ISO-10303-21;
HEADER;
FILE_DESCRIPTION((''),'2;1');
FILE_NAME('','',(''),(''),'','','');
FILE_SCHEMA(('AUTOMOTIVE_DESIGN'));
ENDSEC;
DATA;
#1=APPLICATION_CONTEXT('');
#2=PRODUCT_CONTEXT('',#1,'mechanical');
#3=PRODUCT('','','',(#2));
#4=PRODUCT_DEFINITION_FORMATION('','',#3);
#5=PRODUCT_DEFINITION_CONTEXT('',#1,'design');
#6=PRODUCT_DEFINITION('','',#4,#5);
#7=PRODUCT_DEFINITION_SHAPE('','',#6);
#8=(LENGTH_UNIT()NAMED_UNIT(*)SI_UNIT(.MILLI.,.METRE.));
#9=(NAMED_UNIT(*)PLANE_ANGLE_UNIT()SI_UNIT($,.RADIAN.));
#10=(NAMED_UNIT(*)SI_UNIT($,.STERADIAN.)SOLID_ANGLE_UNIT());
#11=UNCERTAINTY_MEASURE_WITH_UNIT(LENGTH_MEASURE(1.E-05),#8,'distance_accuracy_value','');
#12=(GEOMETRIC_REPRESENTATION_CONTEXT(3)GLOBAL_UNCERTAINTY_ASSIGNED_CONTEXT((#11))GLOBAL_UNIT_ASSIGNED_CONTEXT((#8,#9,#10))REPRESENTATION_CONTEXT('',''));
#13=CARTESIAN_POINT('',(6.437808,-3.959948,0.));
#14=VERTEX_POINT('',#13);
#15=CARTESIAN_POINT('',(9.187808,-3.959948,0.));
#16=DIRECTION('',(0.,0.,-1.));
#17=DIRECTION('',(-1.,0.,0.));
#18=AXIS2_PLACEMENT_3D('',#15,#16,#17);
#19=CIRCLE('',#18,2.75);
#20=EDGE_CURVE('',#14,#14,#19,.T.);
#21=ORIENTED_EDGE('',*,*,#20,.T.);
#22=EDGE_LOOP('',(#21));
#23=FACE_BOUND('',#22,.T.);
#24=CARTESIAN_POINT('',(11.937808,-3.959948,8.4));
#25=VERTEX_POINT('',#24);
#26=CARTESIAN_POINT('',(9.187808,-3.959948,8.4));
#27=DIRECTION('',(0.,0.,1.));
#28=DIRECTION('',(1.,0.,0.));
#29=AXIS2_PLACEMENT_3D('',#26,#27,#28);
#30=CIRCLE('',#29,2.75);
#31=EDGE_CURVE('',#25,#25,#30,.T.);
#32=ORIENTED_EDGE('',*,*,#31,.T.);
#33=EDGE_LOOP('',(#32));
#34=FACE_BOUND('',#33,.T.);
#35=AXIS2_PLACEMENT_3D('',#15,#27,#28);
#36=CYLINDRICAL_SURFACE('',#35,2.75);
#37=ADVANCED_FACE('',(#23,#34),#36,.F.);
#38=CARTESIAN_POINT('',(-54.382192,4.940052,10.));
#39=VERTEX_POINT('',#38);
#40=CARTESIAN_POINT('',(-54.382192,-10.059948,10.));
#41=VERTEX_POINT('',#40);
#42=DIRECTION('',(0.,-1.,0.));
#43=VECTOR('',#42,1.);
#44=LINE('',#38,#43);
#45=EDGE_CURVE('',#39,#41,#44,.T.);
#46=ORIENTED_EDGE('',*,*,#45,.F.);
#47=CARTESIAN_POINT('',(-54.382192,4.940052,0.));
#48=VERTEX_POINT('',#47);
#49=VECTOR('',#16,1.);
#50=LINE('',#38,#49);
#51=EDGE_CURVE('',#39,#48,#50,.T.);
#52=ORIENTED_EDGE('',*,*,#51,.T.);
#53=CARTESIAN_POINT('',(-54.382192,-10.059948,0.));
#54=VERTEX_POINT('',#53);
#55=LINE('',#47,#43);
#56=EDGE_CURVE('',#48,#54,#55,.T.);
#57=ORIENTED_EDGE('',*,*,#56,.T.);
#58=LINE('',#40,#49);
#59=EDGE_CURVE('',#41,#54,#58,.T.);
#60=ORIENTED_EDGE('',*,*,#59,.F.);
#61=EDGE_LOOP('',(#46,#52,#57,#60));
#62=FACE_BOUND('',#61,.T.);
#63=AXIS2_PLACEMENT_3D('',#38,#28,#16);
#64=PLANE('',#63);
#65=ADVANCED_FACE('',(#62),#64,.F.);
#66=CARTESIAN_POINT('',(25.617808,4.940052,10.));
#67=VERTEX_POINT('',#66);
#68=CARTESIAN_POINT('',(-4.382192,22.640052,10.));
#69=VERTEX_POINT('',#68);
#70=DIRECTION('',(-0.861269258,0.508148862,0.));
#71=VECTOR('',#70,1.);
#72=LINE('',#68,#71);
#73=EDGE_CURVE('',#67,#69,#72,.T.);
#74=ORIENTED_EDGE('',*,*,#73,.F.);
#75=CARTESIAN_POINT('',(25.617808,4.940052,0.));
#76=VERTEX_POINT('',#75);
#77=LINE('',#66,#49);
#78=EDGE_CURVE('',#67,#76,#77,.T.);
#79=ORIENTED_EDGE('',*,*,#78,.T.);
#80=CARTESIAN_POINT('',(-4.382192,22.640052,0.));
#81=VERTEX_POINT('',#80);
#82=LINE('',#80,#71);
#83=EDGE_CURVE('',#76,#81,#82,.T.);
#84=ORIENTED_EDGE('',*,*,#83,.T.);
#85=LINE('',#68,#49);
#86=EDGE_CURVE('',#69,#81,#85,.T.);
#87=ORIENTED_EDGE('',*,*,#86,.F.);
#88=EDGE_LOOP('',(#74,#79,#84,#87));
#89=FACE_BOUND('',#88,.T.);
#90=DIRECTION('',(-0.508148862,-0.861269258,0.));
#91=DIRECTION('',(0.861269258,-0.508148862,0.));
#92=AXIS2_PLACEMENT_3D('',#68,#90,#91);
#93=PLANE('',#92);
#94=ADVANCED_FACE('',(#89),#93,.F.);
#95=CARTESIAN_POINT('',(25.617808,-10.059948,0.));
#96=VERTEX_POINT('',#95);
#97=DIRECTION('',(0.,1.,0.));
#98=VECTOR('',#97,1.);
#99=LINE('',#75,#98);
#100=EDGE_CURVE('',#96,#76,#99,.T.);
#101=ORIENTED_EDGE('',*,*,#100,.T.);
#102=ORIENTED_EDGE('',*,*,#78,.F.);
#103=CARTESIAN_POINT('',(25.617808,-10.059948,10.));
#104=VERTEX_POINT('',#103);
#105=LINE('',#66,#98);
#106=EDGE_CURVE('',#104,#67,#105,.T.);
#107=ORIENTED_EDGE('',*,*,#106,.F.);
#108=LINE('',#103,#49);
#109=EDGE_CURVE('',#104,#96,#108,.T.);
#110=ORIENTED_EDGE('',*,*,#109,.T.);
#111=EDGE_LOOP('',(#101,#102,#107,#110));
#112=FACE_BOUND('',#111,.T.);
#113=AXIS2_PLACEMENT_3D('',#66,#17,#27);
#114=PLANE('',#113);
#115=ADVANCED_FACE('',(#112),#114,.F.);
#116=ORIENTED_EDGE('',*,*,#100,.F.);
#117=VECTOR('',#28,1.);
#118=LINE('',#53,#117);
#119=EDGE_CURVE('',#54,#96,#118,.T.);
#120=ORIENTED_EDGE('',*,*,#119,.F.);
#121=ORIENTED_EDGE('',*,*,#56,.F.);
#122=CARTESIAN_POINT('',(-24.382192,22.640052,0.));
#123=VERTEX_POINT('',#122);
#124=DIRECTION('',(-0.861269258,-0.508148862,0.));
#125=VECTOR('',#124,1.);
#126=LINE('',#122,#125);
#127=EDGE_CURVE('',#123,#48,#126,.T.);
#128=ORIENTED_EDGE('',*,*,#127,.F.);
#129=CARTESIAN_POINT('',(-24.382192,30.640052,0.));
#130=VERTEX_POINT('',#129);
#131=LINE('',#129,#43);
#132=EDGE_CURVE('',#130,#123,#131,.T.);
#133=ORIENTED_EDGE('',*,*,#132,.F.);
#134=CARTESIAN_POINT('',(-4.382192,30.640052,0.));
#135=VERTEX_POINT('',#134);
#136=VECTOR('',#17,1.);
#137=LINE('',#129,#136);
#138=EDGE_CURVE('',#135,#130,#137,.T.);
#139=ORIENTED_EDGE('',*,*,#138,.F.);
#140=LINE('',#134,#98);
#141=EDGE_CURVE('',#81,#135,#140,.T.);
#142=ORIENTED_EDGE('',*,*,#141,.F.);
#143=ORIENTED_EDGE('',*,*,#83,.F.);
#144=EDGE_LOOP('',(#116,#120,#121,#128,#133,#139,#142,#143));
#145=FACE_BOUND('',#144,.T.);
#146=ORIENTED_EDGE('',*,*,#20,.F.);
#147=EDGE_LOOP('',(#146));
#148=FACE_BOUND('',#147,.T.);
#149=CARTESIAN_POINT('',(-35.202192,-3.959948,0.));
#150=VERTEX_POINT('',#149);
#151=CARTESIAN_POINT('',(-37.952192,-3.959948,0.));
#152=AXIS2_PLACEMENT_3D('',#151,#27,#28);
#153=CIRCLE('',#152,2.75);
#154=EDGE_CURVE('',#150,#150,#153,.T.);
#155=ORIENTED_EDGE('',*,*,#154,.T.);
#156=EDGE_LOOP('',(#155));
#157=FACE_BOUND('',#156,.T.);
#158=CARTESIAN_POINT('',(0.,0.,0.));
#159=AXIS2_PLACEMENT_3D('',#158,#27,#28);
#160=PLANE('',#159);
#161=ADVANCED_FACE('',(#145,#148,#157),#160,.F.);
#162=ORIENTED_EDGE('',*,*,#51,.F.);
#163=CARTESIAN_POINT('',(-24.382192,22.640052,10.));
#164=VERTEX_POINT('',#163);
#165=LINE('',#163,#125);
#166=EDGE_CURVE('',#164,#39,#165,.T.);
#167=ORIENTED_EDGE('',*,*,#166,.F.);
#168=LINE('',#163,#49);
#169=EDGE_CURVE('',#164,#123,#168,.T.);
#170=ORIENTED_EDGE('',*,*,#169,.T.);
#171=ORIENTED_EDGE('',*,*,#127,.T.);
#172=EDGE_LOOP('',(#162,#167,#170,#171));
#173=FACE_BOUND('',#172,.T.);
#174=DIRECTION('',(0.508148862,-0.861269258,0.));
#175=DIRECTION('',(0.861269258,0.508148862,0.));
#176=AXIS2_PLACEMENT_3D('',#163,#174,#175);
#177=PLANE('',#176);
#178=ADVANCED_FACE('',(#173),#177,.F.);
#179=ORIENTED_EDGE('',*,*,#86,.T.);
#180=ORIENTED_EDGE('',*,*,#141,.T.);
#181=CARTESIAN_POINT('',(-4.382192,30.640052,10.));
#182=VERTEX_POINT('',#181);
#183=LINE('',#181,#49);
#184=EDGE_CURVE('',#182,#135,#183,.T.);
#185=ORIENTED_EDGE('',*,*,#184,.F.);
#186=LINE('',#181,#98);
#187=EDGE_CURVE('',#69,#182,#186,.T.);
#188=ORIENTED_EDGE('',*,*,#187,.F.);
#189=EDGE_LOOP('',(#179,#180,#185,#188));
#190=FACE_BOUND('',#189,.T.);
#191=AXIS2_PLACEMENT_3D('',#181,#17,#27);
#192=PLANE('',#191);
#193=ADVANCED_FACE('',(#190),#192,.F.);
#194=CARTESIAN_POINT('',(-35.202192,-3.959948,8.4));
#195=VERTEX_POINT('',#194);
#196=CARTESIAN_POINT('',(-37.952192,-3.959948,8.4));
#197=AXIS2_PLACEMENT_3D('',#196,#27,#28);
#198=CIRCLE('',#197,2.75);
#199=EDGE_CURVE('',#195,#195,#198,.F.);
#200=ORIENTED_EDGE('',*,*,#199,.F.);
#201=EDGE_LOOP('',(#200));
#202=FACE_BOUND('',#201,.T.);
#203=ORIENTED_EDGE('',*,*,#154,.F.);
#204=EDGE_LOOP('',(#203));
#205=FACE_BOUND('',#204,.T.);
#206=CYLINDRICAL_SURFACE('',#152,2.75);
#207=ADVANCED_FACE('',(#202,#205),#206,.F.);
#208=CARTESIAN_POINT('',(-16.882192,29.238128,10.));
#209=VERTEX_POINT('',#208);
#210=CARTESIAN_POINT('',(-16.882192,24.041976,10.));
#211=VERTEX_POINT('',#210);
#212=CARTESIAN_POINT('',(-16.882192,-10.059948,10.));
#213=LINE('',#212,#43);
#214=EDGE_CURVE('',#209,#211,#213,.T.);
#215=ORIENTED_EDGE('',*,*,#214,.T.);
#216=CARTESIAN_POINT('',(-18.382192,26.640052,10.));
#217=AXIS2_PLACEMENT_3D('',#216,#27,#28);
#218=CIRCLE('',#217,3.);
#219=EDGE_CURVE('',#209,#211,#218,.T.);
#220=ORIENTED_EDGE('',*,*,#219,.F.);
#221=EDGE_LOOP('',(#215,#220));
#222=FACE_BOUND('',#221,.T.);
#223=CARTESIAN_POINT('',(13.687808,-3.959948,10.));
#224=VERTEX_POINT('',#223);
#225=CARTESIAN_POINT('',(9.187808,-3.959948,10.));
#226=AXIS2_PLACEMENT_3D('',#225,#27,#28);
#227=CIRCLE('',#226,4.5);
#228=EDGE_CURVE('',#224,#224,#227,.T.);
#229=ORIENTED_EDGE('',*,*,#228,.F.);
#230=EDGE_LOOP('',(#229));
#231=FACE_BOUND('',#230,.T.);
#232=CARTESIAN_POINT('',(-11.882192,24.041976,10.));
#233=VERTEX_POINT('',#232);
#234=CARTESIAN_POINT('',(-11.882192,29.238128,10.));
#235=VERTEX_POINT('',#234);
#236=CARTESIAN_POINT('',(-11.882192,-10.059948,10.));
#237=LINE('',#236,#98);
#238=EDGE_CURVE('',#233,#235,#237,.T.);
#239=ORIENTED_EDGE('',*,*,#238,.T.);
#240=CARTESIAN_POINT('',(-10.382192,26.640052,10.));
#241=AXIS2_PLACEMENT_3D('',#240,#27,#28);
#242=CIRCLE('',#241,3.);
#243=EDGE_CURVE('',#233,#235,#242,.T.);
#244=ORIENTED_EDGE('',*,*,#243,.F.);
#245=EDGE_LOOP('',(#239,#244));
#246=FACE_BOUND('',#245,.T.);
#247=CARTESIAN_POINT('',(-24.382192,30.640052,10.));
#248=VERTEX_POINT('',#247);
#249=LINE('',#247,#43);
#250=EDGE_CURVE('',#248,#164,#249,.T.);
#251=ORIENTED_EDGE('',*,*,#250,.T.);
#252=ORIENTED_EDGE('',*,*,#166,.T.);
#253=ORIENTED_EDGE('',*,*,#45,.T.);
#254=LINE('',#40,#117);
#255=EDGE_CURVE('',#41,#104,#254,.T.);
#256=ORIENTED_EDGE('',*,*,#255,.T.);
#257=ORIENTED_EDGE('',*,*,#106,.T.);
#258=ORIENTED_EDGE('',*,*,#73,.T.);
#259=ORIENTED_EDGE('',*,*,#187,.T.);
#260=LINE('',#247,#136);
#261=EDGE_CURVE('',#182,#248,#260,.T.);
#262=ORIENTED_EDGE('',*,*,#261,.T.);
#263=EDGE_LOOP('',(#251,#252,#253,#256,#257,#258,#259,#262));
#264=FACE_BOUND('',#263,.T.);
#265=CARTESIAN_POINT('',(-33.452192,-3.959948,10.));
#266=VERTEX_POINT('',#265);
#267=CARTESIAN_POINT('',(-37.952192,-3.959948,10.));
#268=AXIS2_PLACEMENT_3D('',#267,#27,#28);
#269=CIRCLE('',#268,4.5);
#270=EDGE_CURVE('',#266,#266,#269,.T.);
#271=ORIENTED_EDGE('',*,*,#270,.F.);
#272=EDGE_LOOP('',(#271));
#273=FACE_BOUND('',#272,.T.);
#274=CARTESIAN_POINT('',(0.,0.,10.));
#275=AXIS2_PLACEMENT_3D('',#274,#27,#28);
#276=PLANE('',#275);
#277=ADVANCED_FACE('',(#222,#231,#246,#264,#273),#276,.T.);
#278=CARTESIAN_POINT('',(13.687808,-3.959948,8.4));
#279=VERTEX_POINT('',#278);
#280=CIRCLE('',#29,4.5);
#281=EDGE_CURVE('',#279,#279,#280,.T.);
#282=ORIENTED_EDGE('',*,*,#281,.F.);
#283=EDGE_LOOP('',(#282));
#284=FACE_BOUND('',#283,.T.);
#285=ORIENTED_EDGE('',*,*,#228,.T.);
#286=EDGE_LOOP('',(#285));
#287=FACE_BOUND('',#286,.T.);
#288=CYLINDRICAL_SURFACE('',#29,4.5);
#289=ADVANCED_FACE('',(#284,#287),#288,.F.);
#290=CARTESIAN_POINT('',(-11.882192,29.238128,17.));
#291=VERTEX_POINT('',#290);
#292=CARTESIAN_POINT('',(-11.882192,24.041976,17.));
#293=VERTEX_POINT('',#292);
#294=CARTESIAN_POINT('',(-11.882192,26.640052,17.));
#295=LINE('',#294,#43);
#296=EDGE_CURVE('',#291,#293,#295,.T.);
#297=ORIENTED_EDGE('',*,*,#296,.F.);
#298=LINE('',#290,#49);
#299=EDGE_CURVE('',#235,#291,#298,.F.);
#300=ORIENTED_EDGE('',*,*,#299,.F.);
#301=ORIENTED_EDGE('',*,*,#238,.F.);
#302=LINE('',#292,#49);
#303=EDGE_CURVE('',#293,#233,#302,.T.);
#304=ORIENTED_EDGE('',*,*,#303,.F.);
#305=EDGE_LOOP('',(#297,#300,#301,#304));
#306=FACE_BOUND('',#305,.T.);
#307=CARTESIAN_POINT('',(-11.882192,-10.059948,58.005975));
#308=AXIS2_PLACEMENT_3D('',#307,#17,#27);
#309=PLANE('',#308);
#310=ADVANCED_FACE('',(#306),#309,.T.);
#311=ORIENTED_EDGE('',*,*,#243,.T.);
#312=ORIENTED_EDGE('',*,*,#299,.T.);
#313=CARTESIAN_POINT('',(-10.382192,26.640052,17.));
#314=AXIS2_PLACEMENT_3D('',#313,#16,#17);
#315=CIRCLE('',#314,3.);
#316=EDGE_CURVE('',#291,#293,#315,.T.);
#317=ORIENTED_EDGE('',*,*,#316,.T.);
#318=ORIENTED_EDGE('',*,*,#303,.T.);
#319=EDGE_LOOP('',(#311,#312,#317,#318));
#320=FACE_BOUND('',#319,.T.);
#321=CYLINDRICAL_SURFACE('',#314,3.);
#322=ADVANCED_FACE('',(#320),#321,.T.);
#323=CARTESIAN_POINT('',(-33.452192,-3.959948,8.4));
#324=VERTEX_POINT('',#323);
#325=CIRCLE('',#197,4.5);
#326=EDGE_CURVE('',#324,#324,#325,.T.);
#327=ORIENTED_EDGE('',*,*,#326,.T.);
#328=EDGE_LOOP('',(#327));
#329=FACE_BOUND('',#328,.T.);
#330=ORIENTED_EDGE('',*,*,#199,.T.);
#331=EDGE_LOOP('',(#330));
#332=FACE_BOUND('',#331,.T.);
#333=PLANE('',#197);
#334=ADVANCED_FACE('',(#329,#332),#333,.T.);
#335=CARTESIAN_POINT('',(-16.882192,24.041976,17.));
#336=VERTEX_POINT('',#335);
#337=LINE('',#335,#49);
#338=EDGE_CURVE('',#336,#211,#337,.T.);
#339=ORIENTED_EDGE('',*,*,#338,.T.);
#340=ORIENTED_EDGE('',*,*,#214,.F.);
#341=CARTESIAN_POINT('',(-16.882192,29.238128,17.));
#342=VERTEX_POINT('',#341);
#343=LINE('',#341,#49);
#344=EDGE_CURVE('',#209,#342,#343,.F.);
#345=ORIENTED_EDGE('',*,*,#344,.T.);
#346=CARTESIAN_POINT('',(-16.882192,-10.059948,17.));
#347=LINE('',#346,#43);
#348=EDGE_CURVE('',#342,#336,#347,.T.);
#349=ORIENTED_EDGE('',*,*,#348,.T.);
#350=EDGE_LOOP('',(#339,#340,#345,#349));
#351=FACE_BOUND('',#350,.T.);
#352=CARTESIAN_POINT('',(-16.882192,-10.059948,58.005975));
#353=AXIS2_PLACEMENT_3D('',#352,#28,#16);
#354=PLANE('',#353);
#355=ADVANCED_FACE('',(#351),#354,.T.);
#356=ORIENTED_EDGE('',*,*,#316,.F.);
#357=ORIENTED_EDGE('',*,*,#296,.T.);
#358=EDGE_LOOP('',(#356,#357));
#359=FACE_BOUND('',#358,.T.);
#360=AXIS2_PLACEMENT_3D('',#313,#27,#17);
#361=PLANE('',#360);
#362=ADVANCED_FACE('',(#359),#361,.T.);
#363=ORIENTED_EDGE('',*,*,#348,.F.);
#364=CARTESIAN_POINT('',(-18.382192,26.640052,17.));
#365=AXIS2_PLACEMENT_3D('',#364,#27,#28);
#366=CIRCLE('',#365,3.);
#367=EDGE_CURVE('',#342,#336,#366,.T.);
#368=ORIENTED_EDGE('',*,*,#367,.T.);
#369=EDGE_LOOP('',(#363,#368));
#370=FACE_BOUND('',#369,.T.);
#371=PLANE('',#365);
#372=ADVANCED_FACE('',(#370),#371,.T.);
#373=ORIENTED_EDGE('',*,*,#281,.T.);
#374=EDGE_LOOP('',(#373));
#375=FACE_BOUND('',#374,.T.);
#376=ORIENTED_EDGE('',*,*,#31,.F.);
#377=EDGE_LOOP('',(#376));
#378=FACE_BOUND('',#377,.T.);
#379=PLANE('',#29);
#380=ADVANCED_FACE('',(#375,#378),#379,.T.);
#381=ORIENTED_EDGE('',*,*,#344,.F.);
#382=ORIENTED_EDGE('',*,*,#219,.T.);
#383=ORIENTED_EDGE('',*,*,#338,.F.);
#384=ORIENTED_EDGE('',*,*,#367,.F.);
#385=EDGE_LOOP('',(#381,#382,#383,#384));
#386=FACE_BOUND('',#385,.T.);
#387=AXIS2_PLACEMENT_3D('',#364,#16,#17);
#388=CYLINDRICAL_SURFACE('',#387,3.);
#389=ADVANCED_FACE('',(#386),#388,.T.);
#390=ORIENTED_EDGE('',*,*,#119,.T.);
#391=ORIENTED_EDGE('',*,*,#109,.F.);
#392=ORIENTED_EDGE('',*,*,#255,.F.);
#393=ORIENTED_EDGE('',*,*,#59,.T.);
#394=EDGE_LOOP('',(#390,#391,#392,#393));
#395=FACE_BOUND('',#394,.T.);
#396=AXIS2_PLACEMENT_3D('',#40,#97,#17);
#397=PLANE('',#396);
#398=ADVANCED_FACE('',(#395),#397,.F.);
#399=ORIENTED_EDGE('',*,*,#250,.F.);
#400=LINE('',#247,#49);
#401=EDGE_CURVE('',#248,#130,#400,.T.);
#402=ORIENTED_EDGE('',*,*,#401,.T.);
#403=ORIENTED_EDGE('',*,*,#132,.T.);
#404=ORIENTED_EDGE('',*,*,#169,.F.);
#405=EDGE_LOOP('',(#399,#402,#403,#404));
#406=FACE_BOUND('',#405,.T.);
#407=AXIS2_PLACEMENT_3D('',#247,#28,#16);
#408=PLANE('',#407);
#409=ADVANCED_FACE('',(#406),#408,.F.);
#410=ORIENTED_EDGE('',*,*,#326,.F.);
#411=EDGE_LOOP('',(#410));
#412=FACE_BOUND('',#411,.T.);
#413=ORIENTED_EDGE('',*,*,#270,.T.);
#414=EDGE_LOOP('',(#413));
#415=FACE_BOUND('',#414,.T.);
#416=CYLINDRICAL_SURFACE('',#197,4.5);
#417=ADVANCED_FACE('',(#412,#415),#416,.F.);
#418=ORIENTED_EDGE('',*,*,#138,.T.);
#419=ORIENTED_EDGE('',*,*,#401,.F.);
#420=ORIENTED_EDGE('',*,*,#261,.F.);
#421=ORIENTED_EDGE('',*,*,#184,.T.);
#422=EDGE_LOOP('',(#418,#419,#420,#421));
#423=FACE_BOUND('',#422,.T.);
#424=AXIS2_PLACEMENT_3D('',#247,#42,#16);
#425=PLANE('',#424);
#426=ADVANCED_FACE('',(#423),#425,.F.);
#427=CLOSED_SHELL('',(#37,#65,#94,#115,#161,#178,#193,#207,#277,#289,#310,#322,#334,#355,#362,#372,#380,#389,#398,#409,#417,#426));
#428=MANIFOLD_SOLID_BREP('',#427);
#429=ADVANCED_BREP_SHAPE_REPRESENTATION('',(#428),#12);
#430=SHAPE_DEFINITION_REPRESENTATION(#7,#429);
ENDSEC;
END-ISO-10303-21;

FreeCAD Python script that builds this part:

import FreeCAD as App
import Part
import Sketcher

V = App.Vector


def add_polygon(sketch, points):
    """Adds a closed chain of lines whose ends are joined by coincident constraints."""
    first, n = sketch.GeometryCount, len(points)
    for a, b in zip(points, points[1:] + points[:1]):
        sketch.addGeometry(Part.LineSegment(App.Vector(*a, 0), App.Vector(*b, 0)), False)
    for i in range(n):
        sketch.addConstraint(Sketcher.Constraint("Coincident", first + i, 2, first + (i + 1) % n, 1))

doc = App.newDocument("Part")
body = doc.addObject("PartDesign::Body", "Body")

# Sketch on XY plane
sketch1 = body.newObject("Sketcher::SketchObject", "Sketch")
sketch1.AttachmentSupport = (doc.getObject("XY_Plane"), [""])
sketch1.MapMode = "FlatFace"
add_polygon(sketch1, [(-24.382192, 22.640052), (-54.382192, 4.940052), (-54.382192, -10.059948), (25.617808, -10.059948), (25.617808, 4.940052), (-4.382192, 22.640052), (-4.382192, 30.640052), (-24.382192, 30.640052)])  # lines 0-7
sketch1.addConstraint([
    Sketcher.Constraint("Vertical", 1),
    Sketcher.Constraint("Horizontal", 2),
    Sketcher.Constraint("Vertical", 3),
    Sketcher.Constraint("Vertical", 5),
    Sketcher.Constraint("Horizontal", 6),
    Sketcher.Constraint("Vertical", 7),
    Sketcher.Constraint("Horizontal", 0, 2, 3, 2),
    Sketcher.Constraint("Horizontal", 4, 2, 7, 2),
    Sketcher.Constraint("Equal", 0, 4),
    Sketcher.Constraint("DistanceX", 2, 1, 2, 2, 80.0),
    Sketcher.Constraint("DistanceX", 6, 2, 6, 1, 20.0),
    Sketcher.Constraint("DistanceY", 1, 2, 1, 1, 15.0),
    Sketcher.Constraint("DistanceY", 5, 1, 5, 2, 8.0),
    Sketcher.Constraint("DistanceY", 3, 2, 4, 2, 17.7),
    Sketcher.Constraint("DistanceY", -1, 1, 0, 2, 4.940052),
    Sketcher.Constraint("DistanceX", 0, 2, -1, 1, 54.382192),
])
pad1 = body.newObject("PartDesign::Pad", "Pad")
pad1.Profile = sketch1
pad1.Length = 10

# Sketch on XY plane
sketch2 = body.newObject("Sketcher::SketchObject", "Sketch001")
sketch2.AttachmentSupport = (doc.getObject("XY_Plane"), [""])
sketch2.MapMode = "FlatFace"
sketch2.AttachmentOffset = App.Placement(V(0, 0, 10), App.Rotation())
sketch2.addGeometry(Part.Circle(V(-18.382192, 26.640052, 0), V(0, 0, 1), 3), False)
sketch2.addConstraint([
    Sketcher.Constraint("Diameter", 0, 6.0),
    Sketcher.Constraint("DistanceY", -1, 1, 0, 3, 26.640052),
    Sketcher.Constraint("DistanceX", 0, 3, -1, 1, 18.382192),
])
pad2 = body.newObject("PartDesign::Pad", "Pad001")
pad2.Profile = sketch2
pad2.Length = 7
doc.recompute()

datumplane = body.newObject("PartDesign::Plane", "DatumPlane")
datumplane.AttachmentSupport = (doc.getObject("YZ_Plane"), [""])
datumplane.MapMode = "FlatFace"
datumplane.AttachmentOffset = App.Placement(V(0, 0, -14.382192), App.Rotation())
mirrored = body.newObject("PartDesign::Mirrored", "Mirrored")
mirrored.Originals = [pad2]
mirrored.MirrorPlane = (datumplane, [""])
body.Tip = mirrored

# Sketch on XY plane
sketch3 = body.newObject("Sketcher::SketchObject", "Sketch002")
sketch3.AttachmentSupport = (doc.getObject("XY_Plane"), [""])
sketch3.MapMode = "FlatFace"
sketch3.AttachmentOffset = App.Placement(V(0, 0, 10), App.Rotation())
sketch3.addGeometry(Part.Circle(V(-37.952192, -3.959948, 0), V(0, 0, 1), 2.75), False)
sketch3.addConstraint([
    Sketcher.Constraint("Diameter", 0, 5.5),
    Sketcher.Constraint("DistanceY", 0, 3, -1, 1, 3.959948),
    Sketcher.Constraint("DistanceX", 0, 3, -1, 1, 37.952192),
])
pocket1 = body.newObject("PartDesign::Pocket", "Pocket")
pocket1.Profile = sketch3
pocket1.Type = "ThroughAll"
doc.recompute()

datumplane2 = body.newObject("PartDesign::Plane", "DatumPlane001")
datumplane2.AttachmentSupport = (doc.getObject("YZ_Plane"), [""])
datumplane2.MapMode = "FlatFace"
datumplane2.AttachmentOffset = App.Placement(V(0, 0, -14.382192), App.Rotation())
mirrored2 = body.newObject("PartDesign::Mirrored", "Mirrored001")
mirrored2.Originals = [pocket1]
mirrored2.MirrorPlane = (datumplane2, [""])
body.Tip = mirrored2

# Sketch on XY plane
sketch4 = body.newObject("Sketcher::SketchObject", "Sketch003")
sketch4.AttachmentSupport = (doc.getObject("XY_Plane"), [""])
sketch4.MapMode = "FlatFace"
sketch4.AttachmentOffset = App.Placement(V(0, 0, 10), App.Rotation())
add_polygon(sketch4, [(-16.882192, 30.640052), (-16.882192, -10.059948), (-11.882192, -10.059948), (-11.882192, 30.640052)])  # lines 0-3
sketch4.addConstraint([
    Sketcher.Constraint("Vertical", 0),
    Sketcher.Constraint("Horizontal", 1),
    Sketcher.Constraint("Vertical", 2),
    Sketcher.Constraint("Horizontal", 3),
    Sketcher.Constraint("DistanceX", 1, 1, 1, 2, 5.0),
    Sketcher.Constraint("DistanceY", 0, 2, 0, 1, 40.7),
    Sketcher.Constraint("DistanceY", 0, 2, -1, 1, 10.059948),
    Sketcher.Constraint("DistanceX", 0, 2, -1, 1, 16.882192),
])
pocket2 = body.newObject("PartDesign::Pocket", "Pocket001")
pocket2.Profile = sketch4
pocket2.Length = 7
pocket2.Reversed = True

# Sketch on XY plane
sketch5 = body.newObject("Sketcher::SketchObject", "Sketch004")
sketch5.AttachmentSupport = (doc.getObject("XY_Plane"), [""])
sketch5.MapMode = "FlatFace"
sketch5.AttachmentOffset = App.Placement(V(0, 0, 10), App.Rotation())
sketch5.addGeometry([
    Part.Circle(V(-37.952192, -3.959948, 0), V(0, 0, 1), 4.5),
    Part.Circle(V(9.187808, -3.959948, 0), V(0, 0, 1), 4.5),
], False)
sketch5.addConstraint([
    Sketcher.Constraint("Equal", 0, 1),
    Sketcher.Constraint("Horizontal", 0, 3, 1, 3),
    Sketcher.Constraint("Diameter", 0, 9.0),
    Sketcher.Constraint("DistanceX", 0, 3, 1, 3, 47.14),
    Sketcher.Constraint("DistanceY", 0, 3, -1, 1, 3.959948),
    Sketcher.Constraint("DistanceX", 0, 3, -1, 1, 37.952192),
])
pocket3 = body.newObject("PartDesign::Pocket", "Pocket002")
pocket3.Profile = sketch5
pocket3.Length = 1.6

doc.recompute()
